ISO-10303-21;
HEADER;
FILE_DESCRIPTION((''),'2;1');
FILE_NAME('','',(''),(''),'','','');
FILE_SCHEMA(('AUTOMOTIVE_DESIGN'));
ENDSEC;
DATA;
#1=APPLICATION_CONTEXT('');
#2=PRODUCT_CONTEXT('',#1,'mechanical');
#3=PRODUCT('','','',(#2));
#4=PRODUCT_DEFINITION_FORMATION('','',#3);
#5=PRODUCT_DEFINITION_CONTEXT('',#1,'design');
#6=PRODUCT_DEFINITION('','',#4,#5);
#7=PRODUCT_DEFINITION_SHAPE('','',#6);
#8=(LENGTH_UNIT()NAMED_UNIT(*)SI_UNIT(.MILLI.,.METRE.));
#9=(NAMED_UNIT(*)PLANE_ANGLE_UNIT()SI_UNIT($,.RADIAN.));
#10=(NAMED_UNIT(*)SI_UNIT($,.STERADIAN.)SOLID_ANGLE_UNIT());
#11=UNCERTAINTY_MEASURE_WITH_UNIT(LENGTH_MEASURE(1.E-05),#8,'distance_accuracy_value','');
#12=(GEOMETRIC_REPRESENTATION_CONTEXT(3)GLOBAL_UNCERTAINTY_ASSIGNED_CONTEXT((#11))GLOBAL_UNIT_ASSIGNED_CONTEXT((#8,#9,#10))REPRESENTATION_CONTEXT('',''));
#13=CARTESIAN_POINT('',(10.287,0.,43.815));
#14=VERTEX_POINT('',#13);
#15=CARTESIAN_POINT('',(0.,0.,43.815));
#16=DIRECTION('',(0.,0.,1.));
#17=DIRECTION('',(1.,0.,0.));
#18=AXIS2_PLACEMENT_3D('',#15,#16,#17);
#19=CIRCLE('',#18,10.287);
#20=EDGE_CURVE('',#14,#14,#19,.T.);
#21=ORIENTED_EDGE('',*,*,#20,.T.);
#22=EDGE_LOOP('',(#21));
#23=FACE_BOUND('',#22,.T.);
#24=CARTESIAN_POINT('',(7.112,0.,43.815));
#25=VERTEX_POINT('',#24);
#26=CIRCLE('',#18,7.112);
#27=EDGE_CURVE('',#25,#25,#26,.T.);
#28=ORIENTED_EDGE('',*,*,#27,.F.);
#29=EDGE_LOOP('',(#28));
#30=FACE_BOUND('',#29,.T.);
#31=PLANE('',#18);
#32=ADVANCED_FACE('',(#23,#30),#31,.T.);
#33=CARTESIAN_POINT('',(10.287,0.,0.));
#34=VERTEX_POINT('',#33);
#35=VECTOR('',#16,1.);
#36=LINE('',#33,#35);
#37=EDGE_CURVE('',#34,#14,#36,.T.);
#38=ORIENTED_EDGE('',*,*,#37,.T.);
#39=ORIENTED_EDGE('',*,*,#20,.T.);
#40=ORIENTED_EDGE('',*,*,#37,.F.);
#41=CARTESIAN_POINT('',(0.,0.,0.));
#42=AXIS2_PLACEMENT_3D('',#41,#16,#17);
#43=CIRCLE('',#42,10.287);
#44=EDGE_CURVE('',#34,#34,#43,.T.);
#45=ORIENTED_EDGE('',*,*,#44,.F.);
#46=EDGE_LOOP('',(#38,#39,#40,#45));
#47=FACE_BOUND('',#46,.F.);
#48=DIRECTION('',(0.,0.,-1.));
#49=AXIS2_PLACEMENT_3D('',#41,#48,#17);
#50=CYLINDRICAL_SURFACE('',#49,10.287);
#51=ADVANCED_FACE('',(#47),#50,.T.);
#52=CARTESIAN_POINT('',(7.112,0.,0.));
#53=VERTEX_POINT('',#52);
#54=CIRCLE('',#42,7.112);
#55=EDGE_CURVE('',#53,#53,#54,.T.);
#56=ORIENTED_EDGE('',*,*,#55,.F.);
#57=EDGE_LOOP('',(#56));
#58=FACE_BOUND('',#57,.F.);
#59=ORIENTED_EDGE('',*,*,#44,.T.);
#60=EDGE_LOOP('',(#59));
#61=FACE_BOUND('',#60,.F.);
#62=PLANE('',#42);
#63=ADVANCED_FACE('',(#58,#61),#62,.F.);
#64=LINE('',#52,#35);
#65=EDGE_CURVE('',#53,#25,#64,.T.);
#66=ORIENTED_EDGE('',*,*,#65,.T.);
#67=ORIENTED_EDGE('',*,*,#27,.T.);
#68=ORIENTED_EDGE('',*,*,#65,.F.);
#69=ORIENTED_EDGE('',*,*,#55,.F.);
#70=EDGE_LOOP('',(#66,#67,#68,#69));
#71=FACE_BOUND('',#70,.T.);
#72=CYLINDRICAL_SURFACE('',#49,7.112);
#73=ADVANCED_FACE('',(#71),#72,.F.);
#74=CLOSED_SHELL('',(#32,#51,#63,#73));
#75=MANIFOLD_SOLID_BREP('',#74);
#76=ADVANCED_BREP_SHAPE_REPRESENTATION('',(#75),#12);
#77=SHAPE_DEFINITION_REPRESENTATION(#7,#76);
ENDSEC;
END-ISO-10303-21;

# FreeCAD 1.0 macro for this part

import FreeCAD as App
import Part
import Sketcher

V = App.Vector
Q = App.Units.Quantity

doc = App.newDocument("Part")
body = doc.addObject("PartDesign::Body", "Body")

# Sketch on XY plane
sketch1 = body.newObject("Sketcher::SketchObject", "Sketch")
sketch1.AttachmentSupport = (doc.getObject("XY_Plane"), [""])
sketch1.MapMode = "FlatFace"
sketch1.addGeometry([
    Part.Circle(V(0, 0, 0), V(0, 0, 1), 10),
    Part.Circle(V(0, 0, 0), V(0, 0, 1), 7),
], False)
sketch1.addConstraint([
    Sketcher.Constraint("Coincident", 0, 3, -1, 1),
    Sketcher.Constraint("Coincident", 1, 3, -1, 1),
    Sketcher.Constraint("Diameter", 1, Q("0.56 in")),
    Sketcher.Constraint("Diameter", 0, Q("0.81 in")),
])
pad1 = body.newObject("PartDesign::Pad", "Pad")
pad1.Profile = sketch1
pad1.Length = Q("1.725 in")

doc.recompute()
